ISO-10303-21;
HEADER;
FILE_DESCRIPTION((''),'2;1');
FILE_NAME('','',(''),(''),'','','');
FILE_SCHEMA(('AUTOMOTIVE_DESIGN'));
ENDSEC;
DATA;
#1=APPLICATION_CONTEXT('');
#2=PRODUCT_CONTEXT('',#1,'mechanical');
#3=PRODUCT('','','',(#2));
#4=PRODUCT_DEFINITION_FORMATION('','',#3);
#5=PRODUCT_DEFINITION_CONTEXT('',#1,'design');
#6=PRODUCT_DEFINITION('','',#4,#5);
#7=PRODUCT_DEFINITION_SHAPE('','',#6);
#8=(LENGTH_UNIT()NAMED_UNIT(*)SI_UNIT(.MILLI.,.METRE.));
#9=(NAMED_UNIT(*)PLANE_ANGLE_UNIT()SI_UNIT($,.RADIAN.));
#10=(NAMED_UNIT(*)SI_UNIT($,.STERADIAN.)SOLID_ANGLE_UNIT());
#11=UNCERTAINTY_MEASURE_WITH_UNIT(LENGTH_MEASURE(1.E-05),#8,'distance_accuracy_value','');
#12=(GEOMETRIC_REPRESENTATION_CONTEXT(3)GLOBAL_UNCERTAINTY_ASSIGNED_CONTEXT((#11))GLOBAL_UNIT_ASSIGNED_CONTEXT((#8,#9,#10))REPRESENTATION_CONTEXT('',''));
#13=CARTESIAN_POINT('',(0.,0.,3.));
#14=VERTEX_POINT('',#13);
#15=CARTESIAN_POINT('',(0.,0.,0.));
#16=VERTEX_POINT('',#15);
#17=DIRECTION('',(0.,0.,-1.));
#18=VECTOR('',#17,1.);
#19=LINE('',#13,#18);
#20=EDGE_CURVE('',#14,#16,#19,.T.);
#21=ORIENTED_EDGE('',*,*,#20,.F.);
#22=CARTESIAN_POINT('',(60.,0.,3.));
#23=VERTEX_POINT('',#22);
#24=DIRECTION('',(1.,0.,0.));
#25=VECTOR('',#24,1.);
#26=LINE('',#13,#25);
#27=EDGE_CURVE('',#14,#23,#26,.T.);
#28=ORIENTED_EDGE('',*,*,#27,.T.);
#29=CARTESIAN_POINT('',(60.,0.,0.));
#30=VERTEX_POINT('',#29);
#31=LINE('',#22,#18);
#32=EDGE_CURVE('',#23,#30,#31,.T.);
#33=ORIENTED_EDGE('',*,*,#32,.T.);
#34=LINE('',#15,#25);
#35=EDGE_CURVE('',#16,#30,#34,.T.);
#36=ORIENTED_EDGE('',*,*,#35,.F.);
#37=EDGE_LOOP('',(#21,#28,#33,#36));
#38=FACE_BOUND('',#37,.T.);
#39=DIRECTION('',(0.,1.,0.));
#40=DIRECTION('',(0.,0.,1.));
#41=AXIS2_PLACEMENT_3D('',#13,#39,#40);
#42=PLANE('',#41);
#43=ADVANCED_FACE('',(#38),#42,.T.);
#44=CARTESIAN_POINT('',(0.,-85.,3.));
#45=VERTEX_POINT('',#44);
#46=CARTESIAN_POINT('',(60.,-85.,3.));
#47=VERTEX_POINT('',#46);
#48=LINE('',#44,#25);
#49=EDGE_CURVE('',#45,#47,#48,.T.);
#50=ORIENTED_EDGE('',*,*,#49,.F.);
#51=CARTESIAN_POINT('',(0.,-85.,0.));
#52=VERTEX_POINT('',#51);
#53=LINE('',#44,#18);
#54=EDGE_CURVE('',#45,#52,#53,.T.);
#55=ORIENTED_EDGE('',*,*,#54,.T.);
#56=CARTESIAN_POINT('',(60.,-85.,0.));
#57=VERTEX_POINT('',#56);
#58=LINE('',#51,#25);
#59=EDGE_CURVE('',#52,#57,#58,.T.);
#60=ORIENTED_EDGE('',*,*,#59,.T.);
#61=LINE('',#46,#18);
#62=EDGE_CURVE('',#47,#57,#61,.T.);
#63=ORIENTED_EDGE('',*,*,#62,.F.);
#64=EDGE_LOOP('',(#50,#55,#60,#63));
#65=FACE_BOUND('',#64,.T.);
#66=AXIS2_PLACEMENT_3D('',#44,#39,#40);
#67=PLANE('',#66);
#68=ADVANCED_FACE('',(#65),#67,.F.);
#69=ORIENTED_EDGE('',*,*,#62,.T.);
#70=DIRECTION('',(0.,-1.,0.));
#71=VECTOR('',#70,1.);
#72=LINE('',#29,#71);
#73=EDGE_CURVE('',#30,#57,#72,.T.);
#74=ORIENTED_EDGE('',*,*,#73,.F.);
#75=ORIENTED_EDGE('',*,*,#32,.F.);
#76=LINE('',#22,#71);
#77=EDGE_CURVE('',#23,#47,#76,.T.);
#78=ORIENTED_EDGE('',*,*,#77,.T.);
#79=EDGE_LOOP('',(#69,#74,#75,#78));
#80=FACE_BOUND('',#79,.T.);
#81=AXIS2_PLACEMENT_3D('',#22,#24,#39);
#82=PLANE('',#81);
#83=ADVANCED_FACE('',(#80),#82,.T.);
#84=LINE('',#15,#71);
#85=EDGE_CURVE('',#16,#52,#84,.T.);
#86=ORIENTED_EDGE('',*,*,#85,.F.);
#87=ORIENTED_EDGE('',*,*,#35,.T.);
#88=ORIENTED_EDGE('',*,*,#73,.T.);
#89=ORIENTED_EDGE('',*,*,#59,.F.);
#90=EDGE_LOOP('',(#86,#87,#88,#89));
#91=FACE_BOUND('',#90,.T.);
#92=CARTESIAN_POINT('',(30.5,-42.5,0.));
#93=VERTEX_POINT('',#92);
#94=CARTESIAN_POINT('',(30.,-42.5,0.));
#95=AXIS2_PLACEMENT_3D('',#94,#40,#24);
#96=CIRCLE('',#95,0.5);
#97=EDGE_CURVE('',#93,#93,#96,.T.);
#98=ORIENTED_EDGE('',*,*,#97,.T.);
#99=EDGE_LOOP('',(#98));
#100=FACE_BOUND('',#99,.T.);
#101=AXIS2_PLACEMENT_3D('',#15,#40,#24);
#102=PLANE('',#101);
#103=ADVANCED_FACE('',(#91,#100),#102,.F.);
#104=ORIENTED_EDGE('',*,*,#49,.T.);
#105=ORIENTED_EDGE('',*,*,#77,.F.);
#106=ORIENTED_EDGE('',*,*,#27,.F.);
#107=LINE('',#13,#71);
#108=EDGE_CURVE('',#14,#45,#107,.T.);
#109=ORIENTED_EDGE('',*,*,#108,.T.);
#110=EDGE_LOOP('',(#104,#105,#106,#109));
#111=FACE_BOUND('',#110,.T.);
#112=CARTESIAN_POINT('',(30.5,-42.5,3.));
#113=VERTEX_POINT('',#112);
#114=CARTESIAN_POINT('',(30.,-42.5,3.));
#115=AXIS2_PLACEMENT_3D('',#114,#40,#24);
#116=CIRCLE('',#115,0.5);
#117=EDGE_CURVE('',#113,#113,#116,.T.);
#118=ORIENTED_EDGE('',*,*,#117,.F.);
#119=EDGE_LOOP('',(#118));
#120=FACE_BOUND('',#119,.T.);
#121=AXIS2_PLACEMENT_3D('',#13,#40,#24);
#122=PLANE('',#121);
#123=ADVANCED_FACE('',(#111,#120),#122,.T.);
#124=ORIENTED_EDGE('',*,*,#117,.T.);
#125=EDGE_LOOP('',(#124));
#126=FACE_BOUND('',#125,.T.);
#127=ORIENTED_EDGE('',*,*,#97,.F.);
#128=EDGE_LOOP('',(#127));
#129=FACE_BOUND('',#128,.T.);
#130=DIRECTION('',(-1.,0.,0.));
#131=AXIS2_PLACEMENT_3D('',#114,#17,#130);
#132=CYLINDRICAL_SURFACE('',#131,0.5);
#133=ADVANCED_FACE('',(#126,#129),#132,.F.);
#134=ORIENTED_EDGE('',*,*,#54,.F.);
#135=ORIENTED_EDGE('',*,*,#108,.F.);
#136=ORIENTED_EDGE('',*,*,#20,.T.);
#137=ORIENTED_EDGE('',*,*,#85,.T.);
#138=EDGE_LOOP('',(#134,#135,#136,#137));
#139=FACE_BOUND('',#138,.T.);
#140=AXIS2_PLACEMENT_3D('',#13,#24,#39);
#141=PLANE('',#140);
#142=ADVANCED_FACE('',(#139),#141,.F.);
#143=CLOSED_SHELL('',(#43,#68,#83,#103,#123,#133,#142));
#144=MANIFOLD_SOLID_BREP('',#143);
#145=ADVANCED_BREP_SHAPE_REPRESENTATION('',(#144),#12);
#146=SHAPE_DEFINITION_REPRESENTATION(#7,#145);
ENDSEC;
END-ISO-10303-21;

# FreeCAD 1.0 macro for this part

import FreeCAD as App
import Part
import Sketcher
Q = App.Units.Quantity


def add_polygon(sketch, points):
    """Adds a closed chain of lines whose ends are joined by coincident constraints."""
    first, n = sketch.GeometryCount, len(points)
    for a, b in zip(points, points[1:] + points[:1]):
        sketch.addGeometry(Part.LineSegment(App.Vector(*a, 0), App.Vector(*b, 0)), False)
    for i in range(n):
        sketch.addConstraint(Sketcher.Constraint("Coincident", first + i, 2, first + (i + 1) % n, 1))

doc = App.newDocument("Part")
params = doc.addObject("Spreadsheet::Sheet", "Params")
for row, (alias, value) in enumerate([
    ("sketch1_diameter", "1 mm"),
    ("sketch1_width", "60 mm"),
    ("sketch1_height", "85 mm"),
    ("pad1_length", "3 mm"),
], start=1):
    params.set(f"A{row}", alias)
    params.set(f"B{row}", "=" + value)
    params.setAlias(f"B{row}", alias)

body = doc.addObject("PartDesign::Body", "Body")

# Sketch on XY plane
sketch1 = body.newObject("Sketcher::SketchObject", "Sketch")
sketch1.AttachmentSupport = (doc.getObject("XY_Plane"), [""])
sketch1.MapMode = "FlatFace"
add_polygon(sketch1, [(0, 0), (0, -85), (60, -85), (60, 0)])  # lines 0-3
sketch1.addGeometry(Part.Circle(App.Vector(30, -42.5, 0), App.Vector(0, 0, 1), 0.5), False)  # 4
sketch1.addConstraint([
    Sketcher.Constraint("Vertical", 0),
    Sketcher.Constraint("Horizontal", 1),
    Sketcher.Constraint("Vertical", 2),
    Sketcher.Constraint("Horizontal", 3),
    Sketcher.Constraint("Coincident", 3, 2, -1, 1),
    Sketcher.Constraint("Diameter", 4, Q("1 mm")),
    Sketcher.Constraint("DistanceX", 1, 1, 1, 2, Q("60 mm")),
    Sketcher.Constraint("DistanceY", 0, 2, 0, 1, Q("85 mm")),
    Sketcher.Constraint("DistanceX", -1, 1, 4, 3, Q("30 mm")),
    Sketcher.Constraint("DistanceY", 4, 3, -1, 1, Q("42.5 mm")),
])
sketch1.setExpression("Constraints[9]", "Params.sketch1_diameter")
sketch1.setExpression("Constraints[10]", "Params.sketch1_width")
sketch1.setExpression("Constraints[11]", "Params.sketch1_height")
pad1 = body.newObject("PartDesign::Pad", "Pad")
pad1.Profile = sketch1
pad1.setExpression("Length", "Params.pad1_length")

doc.recompute()
